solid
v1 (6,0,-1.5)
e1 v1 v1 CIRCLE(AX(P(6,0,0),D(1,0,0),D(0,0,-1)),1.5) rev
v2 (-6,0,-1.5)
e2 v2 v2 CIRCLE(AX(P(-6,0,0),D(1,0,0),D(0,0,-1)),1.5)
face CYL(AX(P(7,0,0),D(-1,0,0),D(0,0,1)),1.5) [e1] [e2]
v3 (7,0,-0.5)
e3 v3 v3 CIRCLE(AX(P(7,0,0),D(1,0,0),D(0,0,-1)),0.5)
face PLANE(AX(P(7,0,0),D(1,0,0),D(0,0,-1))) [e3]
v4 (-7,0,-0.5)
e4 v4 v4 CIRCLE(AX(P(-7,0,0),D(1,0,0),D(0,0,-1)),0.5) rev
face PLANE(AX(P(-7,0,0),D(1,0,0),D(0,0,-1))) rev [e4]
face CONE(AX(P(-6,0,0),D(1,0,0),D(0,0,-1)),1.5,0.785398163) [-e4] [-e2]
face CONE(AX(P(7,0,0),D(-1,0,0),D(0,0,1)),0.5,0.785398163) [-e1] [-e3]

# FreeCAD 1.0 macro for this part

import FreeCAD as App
import Part
import Sketcher


def edges_at(feature, points):
    """Names of the edges that pass closest to the given points."""
    edges = feature.Shape.Edges
    near = lambda p: min(range(len(edges)), key=lambda i: edges[i].distToShape(Part.Vertex(*p))[0])
    return sorted({f"Edge{near(p) + 1}" for p in points})

doc = App.newDocument("Part")
body = doc.addObject("PartDesign::Body", "Body")

# Sketch on YZ plane
sketch1 = body.newObject("Sketcher::SketchObject", "Sketch")
sketch1.AttachmentSupport = (doc.getObject("YZ_Plane"), [""])
sketch1.MapMode = "FlatFace"
sketch1.addGeometry(Part.Circle(App.Vector(0, 0, 0), App.Vector(0, 0, 1), 1.5), False)
sketch1.addConstraint(Sketcher.Constraint("Coincident", 0, 3, -1, 1))
sketch1.addConstraint(Sketcher.Constraint("Diameter", 0, 3.0))
pad1 = body.newObject("PartDesign::Pad", "Pad")
pad1.Profile = sketch1
pad1.Length = 14
pad1.Midplane = True
doc.recompute()

chamfer = body.newObject("PartDesign::Chamfer", "Chamfer")
chamfer.Base = (pad1, edges_at(pad1, [(-7, 0, 1.5), (7, 0, 1.5)]))
chamfer.Size = 1

doc.recompute()
